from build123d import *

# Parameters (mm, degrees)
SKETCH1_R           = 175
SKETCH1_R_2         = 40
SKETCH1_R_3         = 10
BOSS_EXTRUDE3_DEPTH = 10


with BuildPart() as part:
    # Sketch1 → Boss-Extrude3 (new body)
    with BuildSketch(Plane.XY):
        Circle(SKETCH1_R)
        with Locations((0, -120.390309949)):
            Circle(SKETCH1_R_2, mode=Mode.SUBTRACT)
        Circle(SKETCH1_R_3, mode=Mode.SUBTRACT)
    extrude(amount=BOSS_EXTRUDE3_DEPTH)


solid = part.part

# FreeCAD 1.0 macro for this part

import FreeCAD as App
import Part
import Sketcher
from FreeCAD import Vector

doc = App.newDocument("Part")
params = doc.addObject("Spreadsheet::Sheet", "Params")
for row, (alias, value) in enumerate([
    ("sketch1_diameter", "350 mm"),
    ("sketch1_diameter2", "80 mm"),
    ("sketch1_diameter3", "20 mm"),
    ("pad1_length", "10 mm"),
], start=1):
    params.set(f"A{row}", alias)
    params.set(f"B{row}", "=" + value)
    params.setAlias(f"B{row}", alias)

body = doc.addObject("PartDesign::Body", "Body")

# Sketch on XY plane
sketch1 = doc.addObject("Sketcher::SketchObject", "Sketch")
body.addObject(sketch1)
sketch1.AttachmentSupport = (doc.XY_Plane, [""])
sketch1.MapMode = "FlatFace"
sketch1.addGeometry([
    Part.Circle(Vector(0, 0, 0), Vector(0, 0, 1), 175),
    Part.Circle(Vector(0, -120.39031, 0), Vector(0, 0, 1), 40),
    Part.Circle(Vector(0, 0, 0), Vector(0, 0, 1), 10),
], False)
sketch1.addConstraint([
    Sketcher.Constraint("Coincident", 0, 3, -1, 1),
    Sketcher.Constraint("Coincident", 2, 3, -1, 1),
    Sketcher.Constraint("PointOnObject", 1, 3, -2),
    Sketcher.Constraint("Diameter", 0, 350.0),
    Sketcher.Constraint("Diameter", 1, 80.0),
    Sketcher.Constraint("Diameter", 2, 20.0),
    Sketcher.Constraint("DistanceY", 1, 3, -1, 1, 120.39031),
])
sketch1.setExpression("Constraints[3]", "Params.sketch1_diameter")
sketch1.setExpression("Constraints[4]", "Params.sketch1_diameter2")
sketch1.setExpression("Constraints[5]", "Params.sketch1_diameter3")
pad1 = doc.addObject("PartDesign::Pad", "Pad")
body.addObject(pad1)
pad1.Profile = sketch1
pad1.setExpression("Length", "Params.pad1_length")

doc.recompute()
